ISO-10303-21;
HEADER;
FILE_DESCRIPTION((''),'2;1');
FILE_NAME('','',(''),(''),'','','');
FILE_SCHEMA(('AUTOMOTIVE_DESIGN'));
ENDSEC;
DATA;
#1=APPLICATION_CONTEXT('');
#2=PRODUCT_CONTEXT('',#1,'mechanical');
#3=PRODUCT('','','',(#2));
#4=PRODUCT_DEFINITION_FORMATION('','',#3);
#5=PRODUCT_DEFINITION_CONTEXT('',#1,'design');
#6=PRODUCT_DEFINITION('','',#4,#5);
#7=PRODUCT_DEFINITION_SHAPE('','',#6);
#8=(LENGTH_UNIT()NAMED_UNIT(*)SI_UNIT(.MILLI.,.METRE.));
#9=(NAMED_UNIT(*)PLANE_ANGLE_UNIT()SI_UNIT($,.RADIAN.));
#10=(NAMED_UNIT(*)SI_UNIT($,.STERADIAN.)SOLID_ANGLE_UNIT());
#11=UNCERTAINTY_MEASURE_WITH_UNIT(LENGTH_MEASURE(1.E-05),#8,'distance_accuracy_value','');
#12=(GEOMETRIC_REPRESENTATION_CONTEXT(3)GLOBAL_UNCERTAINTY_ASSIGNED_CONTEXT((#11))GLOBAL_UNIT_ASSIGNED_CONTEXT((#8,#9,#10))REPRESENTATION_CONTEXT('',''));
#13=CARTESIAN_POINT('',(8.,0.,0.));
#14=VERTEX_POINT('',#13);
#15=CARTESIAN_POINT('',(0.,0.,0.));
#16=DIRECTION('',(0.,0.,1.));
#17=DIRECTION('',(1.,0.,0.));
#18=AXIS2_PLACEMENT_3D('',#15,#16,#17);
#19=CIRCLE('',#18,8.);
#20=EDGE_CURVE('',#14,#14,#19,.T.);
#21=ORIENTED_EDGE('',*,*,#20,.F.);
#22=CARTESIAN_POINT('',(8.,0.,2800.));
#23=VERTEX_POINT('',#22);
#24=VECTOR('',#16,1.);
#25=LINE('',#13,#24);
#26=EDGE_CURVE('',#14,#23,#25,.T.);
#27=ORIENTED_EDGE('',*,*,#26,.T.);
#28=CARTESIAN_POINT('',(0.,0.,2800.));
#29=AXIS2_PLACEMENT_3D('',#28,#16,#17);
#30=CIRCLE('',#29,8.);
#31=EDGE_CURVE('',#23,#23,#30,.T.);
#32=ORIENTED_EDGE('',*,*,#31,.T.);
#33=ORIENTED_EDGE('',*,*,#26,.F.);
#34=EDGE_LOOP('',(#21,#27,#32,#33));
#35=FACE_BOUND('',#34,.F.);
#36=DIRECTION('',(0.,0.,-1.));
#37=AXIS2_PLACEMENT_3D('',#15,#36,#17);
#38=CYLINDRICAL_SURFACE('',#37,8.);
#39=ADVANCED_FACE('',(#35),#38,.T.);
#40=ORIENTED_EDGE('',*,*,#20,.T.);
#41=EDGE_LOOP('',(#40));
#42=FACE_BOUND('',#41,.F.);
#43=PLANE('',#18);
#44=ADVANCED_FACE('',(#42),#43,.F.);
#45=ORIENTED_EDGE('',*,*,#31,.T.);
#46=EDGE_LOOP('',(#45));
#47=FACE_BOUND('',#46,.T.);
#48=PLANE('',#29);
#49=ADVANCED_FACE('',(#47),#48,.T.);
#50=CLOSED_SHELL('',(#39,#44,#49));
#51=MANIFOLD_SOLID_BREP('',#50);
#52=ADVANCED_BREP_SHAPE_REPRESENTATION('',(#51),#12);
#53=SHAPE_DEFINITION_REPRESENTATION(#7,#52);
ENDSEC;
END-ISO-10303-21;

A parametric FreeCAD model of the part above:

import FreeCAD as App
import Part
import Sketcher

V = App.Vector

doc = App.newDocument("Part")
body = doc.addObject("PartDesign::Body", "Body")

# Sketch on XY plane
sketch1 = body.newObject("Sketcher::SketchObject", "Sketch")
sketch1.AttachmentSupport = (doc.getObject("XY_Plane"), [""])
sketch1.MapMode = "FlatFace"
sketch1.addGeometry(Part.Circle(V(0, 0, 0), V(0, 0, 1), 8), False)
sketch1.addConstraint(Sketcher.Constraint("Coincident", 0, 3, -1, 1))
sketch1.addConstraint(Sketcher.Constraint("Diameter", 0, 16.0))
pad1 = body.newObject("PartDesign::Pad", "Pad")
pad1.Profile = sketch1
pad1.Length = 2800

doc.recompute()
